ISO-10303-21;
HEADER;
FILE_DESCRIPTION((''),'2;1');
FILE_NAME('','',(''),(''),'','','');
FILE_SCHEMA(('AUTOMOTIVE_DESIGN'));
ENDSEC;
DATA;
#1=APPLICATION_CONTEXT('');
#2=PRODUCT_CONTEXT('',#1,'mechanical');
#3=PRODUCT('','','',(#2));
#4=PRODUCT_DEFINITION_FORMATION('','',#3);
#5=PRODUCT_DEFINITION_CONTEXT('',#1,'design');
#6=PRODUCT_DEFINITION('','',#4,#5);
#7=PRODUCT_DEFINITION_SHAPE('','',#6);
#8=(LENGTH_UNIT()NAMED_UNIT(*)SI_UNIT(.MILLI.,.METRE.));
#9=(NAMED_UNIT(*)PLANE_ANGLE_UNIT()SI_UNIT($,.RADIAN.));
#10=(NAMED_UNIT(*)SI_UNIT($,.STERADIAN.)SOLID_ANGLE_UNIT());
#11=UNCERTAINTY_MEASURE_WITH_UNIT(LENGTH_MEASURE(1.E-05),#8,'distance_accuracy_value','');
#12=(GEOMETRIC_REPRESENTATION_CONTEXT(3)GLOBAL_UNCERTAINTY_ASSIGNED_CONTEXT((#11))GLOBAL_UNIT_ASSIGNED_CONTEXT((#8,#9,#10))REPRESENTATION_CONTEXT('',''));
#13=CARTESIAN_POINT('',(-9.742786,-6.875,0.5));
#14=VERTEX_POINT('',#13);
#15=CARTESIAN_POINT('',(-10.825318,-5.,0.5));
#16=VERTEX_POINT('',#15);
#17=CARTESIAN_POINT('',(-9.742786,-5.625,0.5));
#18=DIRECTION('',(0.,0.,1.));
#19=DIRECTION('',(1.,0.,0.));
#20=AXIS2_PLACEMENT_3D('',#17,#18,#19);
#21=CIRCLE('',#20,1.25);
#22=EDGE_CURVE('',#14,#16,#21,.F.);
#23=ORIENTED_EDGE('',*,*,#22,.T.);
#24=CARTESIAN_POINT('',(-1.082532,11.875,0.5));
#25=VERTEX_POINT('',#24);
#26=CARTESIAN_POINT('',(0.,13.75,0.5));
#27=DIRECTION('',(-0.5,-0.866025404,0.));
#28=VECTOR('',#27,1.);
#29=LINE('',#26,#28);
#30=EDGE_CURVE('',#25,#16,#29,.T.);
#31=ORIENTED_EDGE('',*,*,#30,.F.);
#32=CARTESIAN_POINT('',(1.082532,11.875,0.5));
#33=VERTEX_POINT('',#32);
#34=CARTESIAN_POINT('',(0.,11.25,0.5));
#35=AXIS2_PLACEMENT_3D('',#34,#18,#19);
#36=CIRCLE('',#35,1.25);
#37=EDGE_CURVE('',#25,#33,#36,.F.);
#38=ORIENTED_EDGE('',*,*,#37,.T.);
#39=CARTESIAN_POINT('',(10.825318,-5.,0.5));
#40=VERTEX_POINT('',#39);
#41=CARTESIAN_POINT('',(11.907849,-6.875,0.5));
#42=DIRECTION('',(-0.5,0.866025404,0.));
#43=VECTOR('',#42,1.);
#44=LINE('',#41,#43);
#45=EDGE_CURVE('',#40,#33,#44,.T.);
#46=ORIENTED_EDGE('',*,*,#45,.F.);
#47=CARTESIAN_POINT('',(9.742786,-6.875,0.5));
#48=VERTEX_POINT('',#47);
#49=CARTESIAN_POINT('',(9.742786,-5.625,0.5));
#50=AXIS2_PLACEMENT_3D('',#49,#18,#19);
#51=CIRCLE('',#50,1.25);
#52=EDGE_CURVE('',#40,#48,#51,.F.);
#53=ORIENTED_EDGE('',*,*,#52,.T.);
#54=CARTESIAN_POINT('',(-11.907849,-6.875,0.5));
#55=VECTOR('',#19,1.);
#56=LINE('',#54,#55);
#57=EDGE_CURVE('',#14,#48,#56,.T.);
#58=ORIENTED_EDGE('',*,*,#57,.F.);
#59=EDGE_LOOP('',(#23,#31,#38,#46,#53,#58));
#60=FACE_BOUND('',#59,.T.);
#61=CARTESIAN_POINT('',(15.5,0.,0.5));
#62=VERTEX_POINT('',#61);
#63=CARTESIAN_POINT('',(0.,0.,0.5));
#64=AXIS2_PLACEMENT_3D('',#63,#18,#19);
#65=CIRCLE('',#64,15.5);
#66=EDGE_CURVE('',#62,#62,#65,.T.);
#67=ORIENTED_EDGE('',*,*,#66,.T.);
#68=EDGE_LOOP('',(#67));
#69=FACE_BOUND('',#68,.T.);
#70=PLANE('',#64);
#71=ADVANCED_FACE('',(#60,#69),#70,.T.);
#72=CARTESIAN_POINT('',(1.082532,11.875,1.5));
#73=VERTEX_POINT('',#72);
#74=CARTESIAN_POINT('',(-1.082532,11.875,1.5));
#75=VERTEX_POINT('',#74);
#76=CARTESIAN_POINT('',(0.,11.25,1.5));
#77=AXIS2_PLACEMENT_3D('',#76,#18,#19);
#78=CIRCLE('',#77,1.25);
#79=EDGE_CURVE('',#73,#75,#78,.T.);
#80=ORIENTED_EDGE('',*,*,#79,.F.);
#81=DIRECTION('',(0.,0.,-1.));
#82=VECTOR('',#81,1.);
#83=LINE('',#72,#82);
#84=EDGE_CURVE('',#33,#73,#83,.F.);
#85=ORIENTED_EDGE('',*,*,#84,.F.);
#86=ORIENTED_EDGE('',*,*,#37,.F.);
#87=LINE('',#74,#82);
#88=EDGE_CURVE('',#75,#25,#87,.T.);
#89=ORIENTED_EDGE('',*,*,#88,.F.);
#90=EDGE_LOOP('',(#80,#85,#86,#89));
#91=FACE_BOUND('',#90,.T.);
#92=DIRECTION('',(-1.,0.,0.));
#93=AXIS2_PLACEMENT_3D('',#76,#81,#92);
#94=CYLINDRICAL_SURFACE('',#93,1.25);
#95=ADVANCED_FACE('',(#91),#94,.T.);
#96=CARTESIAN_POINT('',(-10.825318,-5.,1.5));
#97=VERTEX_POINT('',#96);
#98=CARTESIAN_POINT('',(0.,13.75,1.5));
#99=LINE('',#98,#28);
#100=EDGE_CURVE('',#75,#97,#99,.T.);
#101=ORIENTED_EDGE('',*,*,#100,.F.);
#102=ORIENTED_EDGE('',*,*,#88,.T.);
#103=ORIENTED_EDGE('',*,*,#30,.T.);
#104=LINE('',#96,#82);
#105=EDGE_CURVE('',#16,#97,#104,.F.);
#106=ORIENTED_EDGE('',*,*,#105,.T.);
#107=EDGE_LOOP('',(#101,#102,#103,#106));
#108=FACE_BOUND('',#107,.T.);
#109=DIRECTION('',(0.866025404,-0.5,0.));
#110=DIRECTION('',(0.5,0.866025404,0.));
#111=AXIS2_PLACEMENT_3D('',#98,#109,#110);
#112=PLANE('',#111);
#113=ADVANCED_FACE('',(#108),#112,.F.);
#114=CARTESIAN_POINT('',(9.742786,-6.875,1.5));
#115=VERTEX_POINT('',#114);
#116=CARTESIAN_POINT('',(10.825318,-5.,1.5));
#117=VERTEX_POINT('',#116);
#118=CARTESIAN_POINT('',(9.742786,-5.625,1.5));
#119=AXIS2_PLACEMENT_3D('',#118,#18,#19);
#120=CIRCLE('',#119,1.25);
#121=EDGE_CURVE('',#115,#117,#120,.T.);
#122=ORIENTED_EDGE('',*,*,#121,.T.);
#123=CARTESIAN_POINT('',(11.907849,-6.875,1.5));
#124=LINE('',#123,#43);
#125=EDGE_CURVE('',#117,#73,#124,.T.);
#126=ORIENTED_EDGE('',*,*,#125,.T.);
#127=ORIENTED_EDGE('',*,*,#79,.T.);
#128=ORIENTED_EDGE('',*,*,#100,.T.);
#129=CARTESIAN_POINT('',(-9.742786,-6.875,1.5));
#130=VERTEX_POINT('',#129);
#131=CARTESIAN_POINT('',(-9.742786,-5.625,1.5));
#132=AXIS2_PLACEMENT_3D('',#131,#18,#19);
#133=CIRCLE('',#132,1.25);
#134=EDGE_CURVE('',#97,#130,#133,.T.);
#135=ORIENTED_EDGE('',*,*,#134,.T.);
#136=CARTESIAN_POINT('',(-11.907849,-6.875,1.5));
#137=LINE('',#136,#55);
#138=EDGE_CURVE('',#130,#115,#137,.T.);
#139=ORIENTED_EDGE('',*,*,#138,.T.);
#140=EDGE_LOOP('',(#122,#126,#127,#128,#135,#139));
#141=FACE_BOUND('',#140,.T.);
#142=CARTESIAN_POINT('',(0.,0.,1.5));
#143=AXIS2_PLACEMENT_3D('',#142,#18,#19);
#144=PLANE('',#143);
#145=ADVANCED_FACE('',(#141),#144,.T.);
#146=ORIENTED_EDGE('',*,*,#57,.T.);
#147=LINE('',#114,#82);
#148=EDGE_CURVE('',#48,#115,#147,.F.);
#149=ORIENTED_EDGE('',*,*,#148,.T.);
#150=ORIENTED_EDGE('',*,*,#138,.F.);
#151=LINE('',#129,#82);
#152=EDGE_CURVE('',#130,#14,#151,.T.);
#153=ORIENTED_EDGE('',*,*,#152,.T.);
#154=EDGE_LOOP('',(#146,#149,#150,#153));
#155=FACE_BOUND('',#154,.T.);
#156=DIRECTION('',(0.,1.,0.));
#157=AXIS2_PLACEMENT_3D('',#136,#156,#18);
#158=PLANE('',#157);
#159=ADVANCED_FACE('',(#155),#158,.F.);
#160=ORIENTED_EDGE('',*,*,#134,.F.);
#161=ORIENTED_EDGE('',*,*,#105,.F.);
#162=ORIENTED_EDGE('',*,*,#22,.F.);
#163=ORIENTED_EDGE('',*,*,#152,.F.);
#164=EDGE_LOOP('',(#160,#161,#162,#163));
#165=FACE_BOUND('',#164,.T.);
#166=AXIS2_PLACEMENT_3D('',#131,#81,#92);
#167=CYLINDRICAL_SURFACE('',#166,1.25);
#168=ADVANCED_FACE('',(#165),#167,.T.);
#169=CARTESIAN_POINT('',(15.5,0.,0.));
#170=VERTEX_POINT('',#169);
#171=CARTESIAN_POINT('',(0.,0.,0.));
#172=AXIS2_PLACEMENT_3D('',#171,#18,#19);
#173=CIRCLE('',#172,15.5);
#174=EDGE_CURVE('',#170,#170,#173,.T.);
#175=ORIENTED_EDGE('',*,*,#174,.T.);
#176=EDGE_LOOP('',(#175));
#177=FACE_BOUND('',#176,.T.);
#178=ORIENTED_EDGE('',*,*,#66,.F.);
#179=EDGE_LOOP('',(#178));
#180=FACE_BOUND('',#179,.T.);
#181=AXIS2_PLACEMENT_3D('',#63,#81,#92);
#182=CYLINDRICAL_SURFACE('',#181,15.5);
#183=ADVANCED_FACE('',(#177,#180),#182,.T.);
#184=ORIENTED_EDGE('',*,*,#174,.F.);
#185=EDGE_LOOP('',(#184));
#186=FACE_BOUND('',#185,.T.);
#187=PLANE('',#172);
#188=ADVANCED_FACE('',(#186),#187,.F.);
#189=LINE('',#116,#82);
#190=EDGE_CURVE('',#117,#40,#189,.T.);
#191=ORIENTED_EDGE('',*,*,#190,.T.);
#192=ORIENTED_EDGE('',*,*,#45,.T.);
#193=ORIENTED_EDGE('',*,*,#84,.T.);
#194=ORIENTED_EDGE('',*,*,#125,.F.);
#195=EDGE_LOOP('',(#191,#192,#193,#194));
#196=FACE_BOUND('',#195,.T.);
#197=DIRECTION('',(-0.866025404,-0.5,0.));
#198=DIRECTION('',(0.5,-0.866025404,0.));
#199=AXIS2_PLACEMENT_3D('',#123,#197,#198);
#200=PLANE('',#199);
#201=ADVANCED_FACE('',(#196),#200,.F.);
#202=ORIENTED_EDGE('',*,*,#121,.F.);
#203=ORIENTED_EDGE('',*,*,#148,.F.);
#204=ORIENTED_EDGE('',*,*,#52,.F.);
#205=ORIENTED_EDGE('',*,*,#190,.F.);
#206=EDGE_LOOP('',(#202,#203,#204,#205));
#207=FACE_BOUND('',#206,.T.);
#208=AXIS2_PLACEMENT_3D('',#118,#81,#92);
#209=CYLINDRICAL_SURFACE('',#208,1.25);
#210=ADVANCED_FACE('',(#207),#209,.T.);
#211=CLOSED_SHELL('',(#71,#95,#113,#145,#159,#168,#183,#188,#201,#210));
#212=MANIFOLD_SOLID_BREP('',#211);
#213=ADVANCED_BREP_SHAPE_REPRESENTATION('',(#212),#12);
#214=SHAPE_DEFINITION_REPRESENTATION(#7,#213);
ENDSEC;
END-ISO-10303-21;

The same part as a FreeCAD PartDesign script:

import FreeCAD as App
import Part
import Sketcher

V = App.Vector
Q = App.Units.Quantity


def edges_at(feature, points):
    """Names of the edges that pass closest to the given points."""
    edges = feature.Shape.Edges
    near = lambda p: min(range(len(edges)), key=lambda i: edges[i].distToShape(Part.Vertex(*p))[0])
    return sorted({f"Edge{near(p) + 1}" for p in points})


def add_polygon(sketch, points):
    """Adds a closed chain of lines whose ends are joined by coincident constraints."""
    first, n = sketch.GeometryCount, len(points)
    for a, b in zip(points, points[1:] + points[:1]):
        sketch.addGeometry(Part.LineSegment(App.Vector(*a, 0), App.Vector(*b, 0)), False)
    for i in range(n):
        sketch.addConstraint(Sketcher.Constraint("Coincident", first + i, 2, first + (i + 1) % n, 1))

doc = App.newDocument("Part")
body = doc.addObject("PartDesign::Body", "Body")

# Sketch on XY plane
sketch1 = body.newObject("Sketcher::SketchObject", "Sketch")
sketch1.AttachmentSupport = (doc.getObject("XY_Plane"), [""])
sketch1.MapMode = "FlatFace"
sketch1.addGeometry(Part.Circle(V(0, 0, 0), V(0, 0, 1), 15.5), False)
sketch1.addConstraint([
    Sketcher.Constraint("Coincident", 0, 3, -1, 1),
    Sketcher.Constraint("Diameter", 0, 31.0),
])
pad1 = body.newObject("PartDesign::Pad", "Pad")
pad1.Profile = sketch1
pad1.Length = 0.5

# Sketch on XY plane
sketch2 = body.newObject("Sketcher::SketchObject", "Sketch001")
sketch2.AttachmentSupport = (doc.getObject("XY_Plane"), [""])
sketch2.MapMode = "FlatFace"
sketch2.AttachmentOffset = App.Placement(V(0, 0, 0.5), App.Rotation())
add_polygon(sketch2, [(-11.907849, -6.875), (11.907849, -6.875), (0, 13.75)])  # lines 0-2
sketch2.addConstraint([
    Sketcher.Constraint("Horizontal", 0),
    Sketcher.Constraint("PointOnObject", 1, 2, -2),
    Sketcher.Constraint("Equal", 1, 2),
    Sketcher.Constraint("Angle", 1, Q("120 deg")),
    Sketcher.Constraint("DistanceY", -1, 1, 1, 2, 13.75),
    Sketcher.Constraint("DistanceX", 0, 1, 0, 2, 23.815699),
])
pad2 = body.newObject("PartDesign::Pad", "Pad001")
pad2.Profile = sketch2
pad2.Length = 1
doc.recompute()

fillet = body.newObject("PartDesign::Fillet", "Fillet")
fillet.Base = (pad2, edges_at(pad2, [(0, 13.75, 1), (-11.908, -6.875, 1), (11.908, -6.875, 1)]))
fillet.Radius = 1.25

doc.recompute()
